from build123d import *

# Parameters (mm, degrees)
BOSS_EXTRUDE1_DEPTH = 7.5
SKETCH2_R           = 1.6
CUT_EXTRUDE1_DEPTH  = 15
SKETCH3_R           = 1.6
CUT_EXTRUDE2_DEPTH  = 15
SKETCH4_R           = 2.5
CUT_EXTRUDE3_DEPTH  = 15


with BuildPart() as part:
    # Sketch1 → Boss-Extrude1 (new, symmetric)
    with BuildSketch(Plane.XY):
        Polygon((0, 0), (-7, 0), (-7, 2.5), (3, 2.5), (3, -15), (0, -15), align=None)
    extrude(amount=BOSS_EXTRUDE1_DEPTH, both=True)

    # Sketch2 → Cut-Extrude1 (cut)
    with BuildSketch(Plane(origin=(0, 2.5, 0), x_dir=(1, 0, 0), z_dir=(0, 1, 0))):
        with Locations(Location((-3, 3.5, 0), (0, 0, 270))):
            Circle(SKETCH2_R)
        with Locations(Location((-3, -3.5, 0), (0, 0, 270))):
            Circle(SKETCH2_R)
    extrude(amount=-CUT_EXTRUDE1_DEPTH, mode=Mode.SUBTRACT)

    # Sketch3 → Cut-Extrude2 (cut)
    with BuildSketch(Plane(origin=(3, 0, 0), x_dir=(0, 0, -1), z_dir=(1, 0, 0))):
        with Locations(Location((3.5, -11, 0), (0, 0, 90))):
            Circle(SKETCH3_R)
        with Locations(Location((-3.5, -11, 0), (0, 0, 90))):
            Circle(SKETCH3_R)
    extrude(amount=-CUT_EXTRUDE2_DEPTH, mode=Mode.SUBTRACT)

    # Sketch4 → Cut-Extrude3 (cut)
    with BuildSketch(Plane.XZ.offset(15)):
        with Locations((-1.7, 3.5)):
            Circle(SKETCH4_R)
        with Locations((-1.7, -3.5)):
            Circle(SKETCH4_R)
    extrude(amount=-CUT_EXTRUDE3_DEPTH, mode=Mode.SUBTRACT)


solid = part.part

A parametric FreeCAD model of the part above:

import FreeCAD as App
import Part
import Sketcher

V = App.Vector
Q = App.Units.Quantity

doc = App.newDocument("Part")
body = doc.addObject("PartDesign::Body", "Body")

sketch1 = body.newObject("Sketcher::SketchObject", "Sketch")
sketch1.AttachmentSupport = (doc.getObject("XY_Plane"), [""])
sketch1.MapMode = "FlatFace"
sketch1.addGeometry(Part.LineSegment(V(-7, 0, 0), V(0, 0, 0)), False)
sketch1.addGeometry(Part.LineSegment(V(0, 0, 0), V(0, -15, 0)), False)
sketch1.addGeometry(Part.LineSegment(V(0, -15, 0), V(3, -15, 0)), False)
sketch1.addGeometry(Part.LineSegment(V(3, -15, 0), V(3, 2.5, 0)), False)
sketch1.addGeometry(Part.LineSegment(V(3, 2.5, 0), V(-7, 2.5, 0)), False)
sketch1.addGeometry(Part.LineSegment(V(-7, 2.5, 0), V(-7, 0, 0)), False)
sketch1.addConstraint(Sketcher.Constraint("Coincident", 0, 2, 1, 1))
sketch1.addConstraint(Sketcher.Constraint("Coincident", 1, 2, 2, 1))
sketch1.addConstraint(Sketcher.Constraint("Coincident", 2, 2, 3, 1))
sketch1.addConstraint(Sketcher.Constraint("Coincident", 3, 2, 4, 1))
sketch1.addConstraint(Sketcher.Constraint("Coincident", 4, 2, 5, 1))
sketch1.addConstraint(Sketcher.Constraint("Coincident", 5, 2, 0, 1))
sketch1.addConstraint(Sketcher.Constraint("Horizontal", 0))
sketch1.addConstraint(Sketcher.Constraint("Vertical", 1))
sketch1.addConstraint(Sketcher.Constraint("Horizontal", 2))
sketch1.addConstraint(Sketcher.Constraint("Vertical", 3))
sketch1.addConstraint(Sketcher.Constraint("Horizontal", 4))
sketch1.addConstraint(Sketcher.Constraint("Vertical", 5))
sketch1.addConstraint(Sketcher.Constraint("Coincident", 0, 2, -1, 1))
sketch1.addConstraint(Sketcher.Constraint("DistanceX", 0, 1, 0, 2, Q("7 mm")))
sketch1.addConstraint(Sketcher.Constraint("DistanceX", 2, 1, 2, 2, Q("3 mm")))
sketch1.addConstraint(Sketcher.Constraint("DistanceY", 1, 2, 1, 1, Q("15 mm")))
sketch1.addConstraint(Sketcher.Constraint("DistanceY", 3, 1, 3, 2, Q("17.5 mm")))
pad1 = body.newObject("PartDesign::Pad", "Pad")
pad1.Profile = sketch1
pad1.Length = 15
pad1.Midplane = True

sketch2 = body.newObject("Sketcher::SketchObject", "Sketch001")
sketch2.AttachmentSupport = (doc.getObject("XZ_Plane"), [""])
sketch2.MapMode = "FlatFace"
sketch2.AttachmentOffset = App.Placement(V(0, 0, -2.5), App.Rotation())
sketch2.addGeometry(Part.Circle(V(-3, -3.5, 0), V(0, 0, 1), 1.6), False)
sketch2.addGeometry(Part.Circle(V(-3, 3.5, 0), V(0, 0, 1), 1.6), False)
sketch2.addConstraint(Sketcher.Constraint("Equal", 0, 1))
sketch2.addConstraint(Sketcher.Constraint("Symmetric", 0, 3, 1, 3, -1))
sketch2.addConstraint(Sketcher.Constraint("Diameter", 0, Q("3.2 mm")))
sketch2.addConstraint(Sketcher.Constraint("DistanceX", 0, 3, -1, 1, Q("3 mm")))
sketch2.addConstraint(Sketcher.Constraint("DistanceY", 0, 3, 1, 3, Q("7 mm")))
pocket1 = body.newObject("PartDesign::Pocket", "Pocket")
pocket1.Profile = sketch2
pocket1.Length = 15
pocket1.Reversed = True

sketch3 = body.newObject("Sketcher::SketchObject", "Sketch002")
sketch3.AttachmentSupport = (doc.getObject("YZ_Plane"), [""])
sketch3.MapMode = "FlatFace"
sketch3.AttachmentOffset = App.Placement(V(0, 0, 3), App.Rotation())
sketch3.addGeometry(Part.Circle(V(-11, -3.5, 0), V(0, 0, 1), 1.6), False)
sketch3.addGeometry(Part.Circle(V(-11, 3.5, 0), V(0, 0, 1), 1.6), False)
sketch3.addConstraint(Sketcher.Constraint("Equal", 0, 1))
sketch3.addConstraint(Sketcher.Constraint("Symmetric", 0, 3, 1, 3, -1))
sketch3.addConstraint(Sketcher.Constraint("Diameter", 0, Q("3.2 mm")))
sketch3.addConstraint(Sketcher.Constraint("DistanceX", 0, 3, -1, 1, Q("11 mm")))
sketch3.addConstraint(Sketcher.Constraint("DistanceY", 0, 3, 1, 3, Q("7 mm")))
pocket2 = body.newObject("PartDesign::Pocket", "Pocket001")
pocket2.Profile = sketch3
pocket2.Length = 15

sketch4 = body.newObject("Sketcher::SketchObject", "Sketch003")
sketch4.AttachmentSupport = (doc.getObject("XZ_Plane"), [""])
sketch4.MapMode = "FlatFace"
sketch4.AttachmentOffset = App.Placement(V(0, 0, 15), App.Rotation())
sketch4.addGeometry(Part.Circle(V(-1.7, 3.5, 0), V(0, 0, 1), 2.5), False)
sketch4.addGeometry(Part.Circle(V(-1.7, -3.5, 0), V(0, 0, 1), 2.5), False)
sketch4.addConstraint(Sketcher.Constraint("Equal", 0, 1))
sketch4.addConstraint(Sketcher.Constraint("Symmetric", 0, 3, 1, 3, -1))
sketch4.addConstraint(Sketcher.Constraint("Diameter", 0, Q("5 mm")))
sketch4.addConstraint(Sketcher.Constraint("DistanceY", 1, 3, 0, 3, Q("7 mm")))
sketch4.addConstraint(Sketcher.Constraint("DistanceX", 0, 3, -1, 1, Q("1.7 mm")))
pocket3 = body.newObject("PartDesign::Pocket", "Pocket002")
pocket3.Profile = sketch4
pocket3.Length = 15

doc.recompute()
